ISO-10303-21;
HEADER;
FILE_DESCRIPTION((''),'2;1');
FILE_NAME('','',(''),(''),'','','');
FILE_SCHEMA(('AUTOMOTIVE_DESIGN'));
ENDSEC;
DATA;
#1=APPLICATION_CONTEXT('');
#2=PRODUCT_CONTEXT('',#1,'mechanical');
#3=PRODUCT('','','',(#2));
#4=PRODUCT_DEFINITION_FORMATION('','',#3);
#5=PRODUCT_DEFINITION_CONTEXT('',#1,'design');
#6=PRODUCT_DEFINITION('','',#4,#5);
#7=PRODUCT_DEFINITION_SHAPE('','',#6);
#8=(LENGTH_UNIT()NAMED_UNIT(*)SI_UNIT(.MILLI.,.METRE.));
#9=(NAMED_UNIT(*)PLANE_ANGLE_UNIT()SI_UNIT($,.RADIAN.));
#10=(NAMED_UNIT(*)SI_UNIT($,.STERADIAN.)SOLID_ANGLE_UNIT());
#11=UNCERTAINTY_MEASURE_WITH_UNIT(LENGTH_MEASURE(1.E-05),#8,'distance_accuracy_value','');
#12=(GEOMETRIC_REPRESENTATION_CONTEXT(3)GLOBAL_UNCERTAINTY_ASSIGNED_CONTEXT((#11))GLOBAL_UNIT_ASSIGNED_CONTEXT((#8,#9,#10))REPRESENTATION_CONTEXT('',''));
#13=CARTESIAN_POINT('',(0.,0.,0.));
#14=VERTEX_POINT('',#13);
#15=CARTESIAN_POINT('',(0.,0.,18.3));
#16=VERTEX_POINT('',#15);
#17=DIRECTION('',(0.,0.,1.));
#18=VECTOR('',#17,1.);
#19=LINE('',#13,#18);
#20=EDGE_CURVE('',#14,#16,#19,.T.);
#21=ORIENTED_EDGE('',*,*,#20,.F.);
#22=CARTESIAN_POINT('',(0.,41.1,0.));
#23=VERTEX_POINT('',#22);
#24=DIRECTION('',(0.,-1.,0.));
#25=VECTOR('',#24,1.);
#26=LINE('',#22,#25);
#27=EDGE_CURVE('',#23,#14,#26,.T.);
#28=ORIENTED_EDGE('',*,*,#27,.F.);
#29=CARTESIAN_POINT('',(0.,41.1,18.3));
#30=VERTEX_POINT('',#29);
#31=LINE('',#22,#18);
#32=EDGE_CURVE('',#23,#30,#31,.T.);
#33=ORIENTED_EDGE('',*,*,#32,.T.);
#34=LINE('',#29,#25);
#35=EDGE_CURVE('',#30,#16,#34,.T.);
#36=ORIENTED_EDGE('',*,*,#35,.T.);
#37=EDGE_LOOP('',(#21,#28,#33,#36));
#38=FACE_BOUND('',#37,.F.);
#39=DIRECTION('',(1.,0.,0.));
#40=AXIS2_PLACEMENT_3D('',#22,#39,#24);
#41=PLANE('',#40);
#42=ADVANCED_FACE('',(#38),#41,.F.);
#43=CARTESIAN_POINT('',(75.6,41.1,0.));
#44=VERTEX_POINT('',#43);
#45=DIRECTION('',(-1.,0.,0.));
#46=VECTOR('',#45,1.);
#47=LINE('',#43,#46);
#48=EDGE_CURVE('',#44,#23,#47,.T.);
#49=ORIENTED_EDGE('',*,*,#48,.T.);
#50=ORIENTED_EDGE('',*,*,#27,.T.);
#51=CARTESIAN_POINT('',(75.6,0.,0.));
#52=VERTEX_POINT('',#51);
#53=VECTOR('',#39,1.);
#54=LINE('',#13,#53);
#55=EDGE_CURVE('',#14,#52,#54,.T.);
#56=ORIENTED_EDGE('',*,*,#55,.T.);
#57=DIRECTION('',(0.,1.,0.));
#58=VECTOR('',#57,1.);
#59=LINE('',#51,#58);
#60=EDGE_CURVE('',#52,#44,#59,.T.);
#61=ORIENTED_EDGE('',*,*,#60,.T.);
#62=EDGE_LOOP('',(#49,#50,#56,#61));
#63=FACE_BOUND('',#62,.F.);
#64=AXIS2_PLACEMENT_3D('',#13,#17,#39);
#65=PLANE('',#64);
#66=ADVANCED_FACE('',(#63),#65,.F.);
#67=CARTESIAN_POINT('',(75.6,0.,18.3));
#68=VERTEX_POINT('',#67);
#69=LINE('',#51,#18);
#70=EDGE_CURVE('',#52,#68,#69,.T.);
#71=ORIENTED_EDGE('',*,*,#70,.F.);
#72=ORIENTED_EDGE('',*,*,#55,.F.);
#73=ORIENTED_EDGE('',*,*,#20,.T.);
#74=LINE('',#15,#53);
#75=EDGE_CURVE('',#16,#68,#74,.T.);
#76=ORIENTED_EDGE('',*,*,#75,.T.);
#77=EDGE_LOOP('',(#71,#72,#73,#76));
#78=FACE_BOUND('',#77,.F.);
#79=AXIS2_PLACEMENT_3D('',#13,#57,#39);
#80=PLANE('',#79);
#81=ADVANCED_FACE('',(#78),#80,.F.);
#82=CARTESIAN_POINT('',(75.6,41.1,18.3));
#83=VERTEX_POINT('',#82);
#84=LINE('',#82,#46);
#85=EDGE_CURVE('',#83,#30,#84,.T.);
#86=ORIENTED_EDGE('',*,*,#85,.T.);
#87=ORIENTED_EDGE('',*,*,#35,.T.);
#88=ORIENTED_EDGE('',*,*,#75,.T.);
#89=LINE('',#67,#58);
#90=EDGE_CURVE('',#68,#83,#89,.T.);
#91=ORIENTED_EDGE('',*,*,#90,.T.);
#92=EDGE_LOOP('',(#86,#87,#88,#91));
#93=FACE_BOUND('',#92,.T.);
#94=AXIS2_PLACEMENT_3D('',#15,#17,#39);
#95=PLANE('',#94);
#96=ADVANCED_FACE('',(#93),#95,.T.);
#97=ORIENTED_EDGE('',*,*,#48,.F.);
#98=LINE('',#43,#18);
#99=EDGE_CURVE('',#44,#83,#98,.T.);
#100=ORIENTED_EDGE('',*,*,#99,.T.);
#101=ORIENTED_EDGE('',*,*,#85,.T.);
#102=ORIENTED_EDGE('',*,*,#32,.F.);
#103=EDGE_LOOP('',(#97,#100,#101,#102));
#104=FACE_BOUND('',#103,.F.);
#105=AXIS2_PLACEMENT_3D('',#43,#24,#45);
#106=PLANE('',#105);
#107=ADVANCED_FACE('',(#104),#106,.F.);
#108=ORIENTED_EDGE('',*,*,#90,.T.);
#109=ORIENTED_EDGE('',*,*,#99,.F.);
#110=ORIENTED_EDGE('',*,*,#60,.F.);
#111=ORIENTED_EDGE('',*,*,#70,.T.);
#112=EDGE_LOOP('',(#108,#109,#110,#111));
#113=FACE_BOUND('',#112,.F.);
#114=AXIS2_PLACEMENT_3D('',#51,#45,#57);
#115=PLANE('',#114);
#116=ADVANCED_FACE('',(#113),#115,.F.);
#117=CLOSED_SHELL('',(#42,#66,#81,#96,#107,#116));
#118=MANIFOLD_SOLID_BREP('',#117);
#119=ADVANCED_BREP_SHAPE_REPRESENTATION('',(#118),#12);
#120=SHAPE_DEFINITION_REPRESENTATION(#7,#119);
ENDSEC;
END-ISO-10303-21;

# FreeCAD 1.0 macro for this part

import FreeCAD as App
import Part
import Sketcher
from FreeCAD import Vector
Q = App.Units.Quantity

doc = App.newDocument("Part")
params = doc.addObject("Spreadsheet::Sheet", "Params")
for row, (alias, value) in enumerate([
    ("sketch1_width", "75.6 mm"),
    ("sketch1_height", "41.1 mm"),
    ("pad1_length", "18.3 mm"),
], start=1):
    params.set(f"A{row}", alias)
    params.set(f"B{row}", "=" + value)
    params.setAlias(f"B{row}", alias)

body = doc.addObject("PartDesign::Body", "Body")

# Sketch on XY plane
sketch1 = doc.addObject("Sketcher::SketchObject", "Sketch")
body.addObject(sketch1)
sketch1.AttachmentSupport = (doc.XY_Plane, [""])
sketch1.MapMode = "FlatFace"
sketch1.addGeometry([
    Part.LineSegment(Vector(0, 41.1, 0), Vector(0, 0, 0)),
    Part.LineSegment(Vector(0, 0, 0), Vector(75.6, 0, 0)),
    Part.LineSegment(Vector(75.6, 0, 0), Vector(75.6, 41.1, 0)),
    Part.LineSegment(Vector(75.6, 41.1, 0), Vector(0, 41.1, 0)),
], False)
sketch1.addConstraint([
    Sketcher.Constraint("Coincident", 0, 2, 1, 1),
    Sketcher.Constraint("Coincident", 1, 2, 2, 1),
    Sketcher.Constraint("Coincident", 2, 2, 3, 1),
    Sketcher.Constraint("Coincident", 3, 2, 0, 1),
    Sketcher.Constraint("Vertical", 0),
    Sketcher.Constraint("Horizontal", 1),
    Sketcher.Constraint("Vertical", 2),
    Sketcher.Constraint("Horizontal", 3),
    Sketcher.Constraint("Coincident", 0, 2, -1, 1),
    Sketcher.Constraint("DistanceX", 1, 1, 1, 2, Q("75.6 mm")),
    Sketcher.Constraint("DistanceY", 0, 2, 0, 1, Q("41.1 mm")),
])
sketch1.setExpression("Constraints[9]", "Params.sketch1_width")
sketch1.setExpression("Constraints[10]", "Params.sketch1_height")
pad1 = doc.addObject("PartDesign::Pad", "Pad")
body.addObject(pad1)
pad1.Profile = sketch1
pad1.setExpression("Length", "Params.pad1_length")

doc.recompute()
